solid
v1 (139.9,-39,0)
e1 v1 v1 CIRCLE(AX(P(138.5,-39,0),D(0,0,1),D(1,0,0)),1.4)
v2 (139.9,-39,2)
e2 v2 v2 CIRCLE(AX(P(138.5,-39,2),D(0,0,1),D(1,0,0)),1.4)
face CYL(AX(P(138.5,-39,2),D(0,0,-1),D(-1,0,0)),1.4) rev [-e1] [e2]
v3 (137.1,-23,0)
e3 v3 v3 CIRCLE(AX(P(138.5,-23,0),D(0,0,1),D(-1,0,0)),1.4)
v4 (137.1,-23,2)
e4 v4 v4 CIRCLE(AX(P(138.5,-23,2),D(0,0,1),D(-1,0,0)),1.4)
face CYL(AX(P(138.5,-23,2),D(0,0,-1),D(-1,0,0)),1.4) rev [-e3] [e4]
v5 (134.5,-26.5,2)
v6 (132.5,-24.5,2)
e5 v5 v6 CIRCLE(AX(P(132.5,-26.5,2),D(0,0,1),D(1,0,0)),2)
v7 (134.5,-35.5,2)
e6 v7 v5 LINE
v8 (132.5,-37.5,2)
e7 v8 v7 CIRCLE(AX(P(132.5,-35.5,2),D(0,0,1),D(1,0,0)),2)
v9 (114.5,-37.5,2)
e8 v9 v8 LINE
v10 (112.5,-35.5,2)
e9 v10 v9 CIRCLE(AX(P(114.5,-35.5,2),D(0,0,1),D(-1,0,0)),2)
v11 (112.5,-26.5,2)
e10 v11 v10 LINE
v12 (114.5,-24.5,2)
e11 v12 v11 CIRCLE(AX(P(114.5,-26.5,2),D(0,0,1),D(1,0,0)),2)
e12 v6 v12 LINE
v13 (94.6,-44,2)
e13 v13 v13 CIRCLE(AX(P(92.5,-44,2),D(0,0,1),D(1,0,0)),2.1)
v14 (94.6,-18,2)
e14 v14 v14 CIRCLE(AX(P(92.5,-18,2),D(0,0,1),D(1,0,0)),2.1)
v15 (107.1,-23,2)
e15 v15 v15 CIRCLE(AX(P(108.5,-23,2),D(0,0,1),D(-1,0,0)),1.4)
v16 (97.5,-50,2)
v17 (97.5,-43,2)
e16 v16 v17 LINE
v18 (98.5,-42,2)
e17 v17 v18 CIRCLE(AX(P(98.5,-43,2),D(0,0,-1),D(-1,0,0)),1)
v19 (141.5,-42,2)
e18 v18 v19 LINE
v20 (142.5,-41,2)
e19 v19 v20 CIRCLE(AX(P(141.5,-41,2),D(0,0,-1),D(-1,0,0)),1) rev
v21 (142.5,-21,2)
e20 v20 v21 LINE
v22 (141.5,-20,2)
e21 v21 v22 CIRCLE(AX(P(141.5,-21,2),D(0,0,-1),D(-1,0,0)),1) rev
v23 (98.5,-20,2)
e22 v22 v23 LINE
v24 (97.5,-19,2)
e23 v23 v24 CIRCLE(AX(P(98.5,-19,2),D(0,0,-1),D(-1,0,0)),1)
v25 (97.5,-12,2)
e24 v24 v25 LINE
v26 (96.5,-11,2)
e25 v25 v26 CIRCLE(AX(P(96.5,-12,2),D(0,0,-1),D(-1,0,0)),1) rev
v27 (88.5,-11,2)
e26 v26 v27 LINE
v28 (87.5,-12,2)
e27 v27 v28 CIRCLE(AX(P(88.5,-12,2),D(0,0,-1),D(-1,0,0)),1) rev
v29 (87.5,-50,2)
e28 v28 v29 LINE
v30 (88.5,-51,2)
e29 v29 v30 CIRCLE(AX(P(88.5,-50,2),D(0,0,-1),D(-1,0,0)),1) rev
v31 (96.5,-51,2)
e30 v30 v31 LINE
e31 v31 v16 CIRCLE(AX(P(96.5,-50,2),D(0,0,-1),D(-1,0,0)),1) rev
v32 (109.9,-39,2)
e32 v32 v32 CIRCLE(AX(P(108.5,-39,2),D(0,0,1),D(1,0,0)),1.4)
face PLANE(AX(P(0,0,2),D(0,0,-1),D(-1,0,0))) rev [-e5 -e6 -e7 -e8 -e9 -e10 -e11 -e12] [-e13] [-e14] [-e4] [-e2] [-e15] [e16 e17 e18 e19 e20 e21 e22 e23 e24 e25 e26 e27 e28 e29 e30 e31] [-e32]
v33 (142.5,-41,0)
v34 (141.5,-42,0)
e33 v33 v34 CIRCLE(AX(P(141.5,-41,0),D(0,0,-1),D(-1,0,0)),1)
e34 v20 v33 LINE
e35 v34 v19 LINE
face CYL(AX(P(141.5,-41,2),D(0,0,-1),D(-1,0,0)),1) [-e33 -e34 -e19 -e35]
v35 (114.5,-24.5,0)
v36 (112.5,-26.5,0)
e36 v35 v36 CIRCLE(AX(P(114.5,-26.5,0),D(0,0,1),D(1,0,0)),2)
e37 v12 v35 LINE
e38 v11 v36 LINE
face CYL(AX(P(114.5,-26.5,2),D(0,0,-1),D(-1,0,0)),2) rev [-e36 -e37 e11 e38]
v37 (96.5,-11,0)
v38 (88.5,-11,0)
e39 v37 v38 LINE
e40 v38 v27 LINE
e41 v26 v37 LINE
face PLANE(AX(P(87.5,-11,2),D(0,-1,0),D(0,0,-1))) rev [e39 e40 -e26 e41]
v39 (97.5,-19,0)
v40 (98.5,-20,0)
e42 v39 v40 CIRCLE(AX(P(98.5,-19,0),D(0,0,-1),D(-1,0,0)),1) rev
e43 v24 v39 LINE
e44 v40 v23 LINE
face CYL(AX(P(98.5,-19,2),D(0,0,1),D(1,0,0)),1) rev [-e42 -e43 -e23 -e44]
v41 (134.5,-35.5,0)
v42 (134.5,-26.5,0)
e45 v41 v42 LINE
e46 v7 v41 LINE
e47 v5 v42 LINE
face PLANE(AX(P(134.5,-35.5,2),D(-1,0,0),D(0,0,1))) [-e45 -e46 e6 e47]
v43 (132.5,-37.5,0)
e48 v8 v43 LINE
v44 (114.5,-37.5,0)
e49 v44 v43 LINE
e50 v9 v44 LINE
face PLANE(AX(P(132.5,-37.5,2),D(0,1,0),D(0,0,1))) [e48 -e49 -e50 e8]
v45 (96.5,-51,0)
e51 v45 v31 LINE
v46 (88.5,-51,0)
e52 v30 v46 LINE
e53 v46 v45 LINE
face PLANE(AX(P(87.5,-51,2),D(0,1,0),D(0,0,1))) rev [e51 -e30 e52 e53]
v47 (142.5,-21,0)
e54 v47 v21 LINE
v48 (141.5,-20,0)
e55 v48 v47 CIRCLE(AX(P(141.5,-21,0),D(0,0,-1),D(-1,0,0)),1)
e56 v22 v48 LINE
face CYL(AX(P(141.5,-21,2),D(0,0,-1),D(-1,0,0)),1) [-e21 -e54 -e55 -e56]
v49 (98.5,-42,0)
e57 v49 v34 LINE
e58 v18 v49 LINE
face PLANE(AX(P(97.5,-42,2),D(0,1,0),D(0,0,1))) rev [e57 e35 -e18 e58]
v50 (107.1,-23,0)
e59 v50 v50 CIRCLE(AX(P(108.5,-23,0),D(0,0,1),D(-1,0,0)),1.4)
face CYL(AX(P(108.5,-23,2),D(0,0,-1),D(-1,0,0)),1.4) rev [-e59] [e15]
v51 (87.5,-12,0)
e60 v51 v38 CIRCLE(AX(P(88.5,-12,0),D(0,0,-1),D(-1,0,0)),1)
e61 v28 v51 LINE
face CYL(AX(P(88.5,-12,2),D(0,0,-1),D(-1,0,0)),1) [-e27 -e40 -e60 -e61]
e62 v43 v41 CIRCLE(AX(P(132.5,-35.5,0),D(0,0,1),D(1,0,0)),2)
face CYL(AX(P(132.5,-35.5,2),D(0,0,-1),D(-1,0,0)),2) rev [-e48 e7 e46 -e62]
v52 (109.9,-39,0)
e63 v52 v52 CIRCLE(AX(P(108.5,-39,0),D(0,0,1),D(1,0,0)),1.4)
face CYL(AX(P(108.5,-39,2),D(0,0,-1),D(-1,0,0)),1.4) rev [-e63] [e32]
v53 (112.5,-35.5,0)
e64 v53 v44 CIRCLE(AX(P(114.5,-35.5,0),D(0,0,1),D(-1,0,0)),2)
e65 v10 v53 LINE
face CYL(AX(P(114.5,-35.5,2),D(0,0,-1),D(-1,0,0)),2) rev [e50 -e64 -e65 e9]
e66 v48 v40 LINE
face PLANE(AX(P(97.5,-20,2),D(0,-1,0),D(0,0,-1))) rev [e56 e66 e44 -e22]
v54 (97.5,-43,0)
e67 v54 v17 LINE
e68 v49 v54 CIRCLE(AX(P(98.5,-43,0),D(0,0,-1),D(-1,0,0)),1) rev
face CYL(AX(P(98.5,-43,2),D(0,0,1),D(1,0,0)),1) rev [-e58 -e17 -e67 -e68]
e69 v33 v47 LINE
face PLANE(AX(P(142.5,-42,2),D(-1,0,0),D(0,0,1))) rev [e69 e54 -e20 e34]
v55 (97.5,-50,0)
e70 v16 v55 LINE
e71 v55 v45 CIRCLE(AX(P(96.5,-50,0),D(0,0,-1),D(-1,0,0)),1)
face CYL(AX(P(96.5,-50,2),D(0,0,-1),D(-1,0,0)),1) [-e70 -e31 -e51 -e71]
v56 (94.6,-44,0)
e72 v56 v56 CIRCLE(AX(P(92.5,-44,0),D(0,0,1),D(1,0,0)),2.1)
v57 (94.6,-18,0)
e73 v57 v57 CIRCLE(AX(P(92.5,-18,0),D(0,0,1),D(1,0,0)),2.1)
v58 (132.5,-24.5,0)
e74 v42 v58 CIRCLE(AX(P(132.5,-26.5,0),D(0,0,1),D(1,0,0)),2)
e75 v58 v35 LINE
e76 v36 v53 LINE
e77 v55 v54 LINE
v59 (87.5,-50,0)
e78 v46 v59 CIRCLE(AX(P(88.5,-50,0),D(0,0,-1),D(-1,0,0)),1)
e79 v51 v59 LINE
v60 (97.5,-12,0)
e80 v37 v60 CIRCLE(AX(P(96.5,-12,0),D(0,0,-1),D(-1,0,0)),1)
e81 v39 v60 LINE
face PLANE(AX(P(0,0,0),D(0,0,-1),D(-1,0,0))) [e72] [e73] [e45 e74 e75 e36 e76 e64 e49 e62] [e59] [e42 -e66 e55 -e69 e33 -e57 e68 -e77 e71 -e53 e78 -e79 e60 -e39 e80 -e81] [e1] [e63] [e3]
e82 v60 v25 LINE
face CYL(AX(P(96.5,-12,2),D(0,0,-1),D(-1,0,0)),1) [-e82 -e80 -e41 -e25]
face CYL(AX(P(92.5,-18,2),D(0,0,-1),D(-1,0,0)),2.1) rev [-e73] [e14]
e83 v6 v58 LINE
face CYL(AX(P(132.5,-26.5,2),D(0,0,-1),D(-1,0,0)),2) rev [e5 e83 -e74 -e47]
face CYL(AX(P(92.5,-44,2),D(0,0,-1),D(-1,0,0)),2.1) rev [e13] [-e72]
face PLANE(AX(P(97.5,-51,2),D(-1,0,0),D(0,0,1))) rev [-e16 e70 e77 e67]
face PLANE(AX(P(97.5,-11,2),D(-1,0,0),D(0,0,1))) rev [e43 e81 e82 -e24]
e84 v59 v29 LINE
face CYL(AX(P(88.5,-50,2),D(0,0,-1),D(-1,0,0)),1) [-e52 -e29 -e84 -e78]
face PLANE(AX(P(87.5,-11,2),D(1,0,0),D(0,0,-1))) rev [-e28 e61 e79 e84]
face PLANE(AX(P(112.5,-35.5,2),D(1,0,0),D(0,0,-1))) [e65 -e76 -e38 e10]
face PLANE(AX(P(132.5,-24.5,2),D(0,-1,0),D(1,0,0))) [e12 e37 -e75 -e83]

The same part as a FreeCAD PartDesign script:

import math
import FreeCAD as App
import Part
import Sketcher

V = App.Vector


def edges_at(feature, points):
    """Names of the edges that pass closest to the given points."""
    edges = feature.Shape.Edges
    near = lambda p: min(range(len(edges)), key=lambda i: edges[i].distToShape(Part.Vertex(*p))[0])
    return sorted({f"Edge{near(p) + 1}" for p in points})

doc = App.newDocument("Part")
params = doc.addObject("Spreadsheet::Sheet", "Params")
for row, (alias, value) in enumerate([
    ("sketch1_radius", "2 mm"),
    ("sketch1_diameter", "4.2 mm"),
    ("sketch1_diameter2", "2.8 mm"),
    ("sketch1_width", "10 mm"),
    ("sketch1_width2", "45 mm"),
    ("pad1_length", "2 mm"),
    ("fillet_radius", "1 mm"),
], start=1):
    params.set(f"A{row}", alias)
    params.set(f"B{row}", "=" + value)
    params.setAlias(f"B{row}", alias)

body = doc.addObject("PartDesign::Body", "Body")

sketch1 = body.newObject("Sketcher::SketchObject", "Sketch")
sketch1.AttachmentSupport = (doc.getObject("XY_Plane"), [""])
sketch1.MapMode = "FlatFace"
sketch1.addGeometry([
    Part.LineSegment(V(87.5, -11, 0), V(87.5, -51, 0)),
    Part.LineSegment(V(87.5, -51, 0), V(97.5, -51, 0)),
    Part.LineSegment(V(97.5, -51, 0), V(97.5, -42, 0)),
    Part.LineSegment(V(97.5, -42, 0), V(142.5, -42, 0)),
    Part.LineSegment(V(142.5, -42, 0), V(142.5, -20, 0)),
    Part.LineSegment(V(142.5, -20, 0), V(97.5, -20, 0)),
    Part.LineSegment(V(97.5, -20, 0), V(97.5, -11, 0)),
    Part.LineSegment(V(97.5, -11, 0), V(87.5, -11, 0)),
    Part.Circle(V(92.5, -44, 0), V(0, 0, 1), 2.1),
    Part.Circle(V(108.5, -39, 0), V(0, 0, 1), 1.4),
    Part.Circle(V(138.5, -39, 0), V(0, 0, 1), 1.4),
    Part.ArcOfCircle(Part.Circle(V(132.5, -35.5, 0), V(0, 0, 1), 2), math.radians(-90), math.radians(0)),
    Part.LineSegment(V(132.5, -37.5, 0), V(114.5, -37.5, 0)),
    Part.ArcOfCircle(Part.Circle(V(114.5, -35.5, 0), V(0, 0, 1), 2), math.radians(-180), math.radians(-90)),
    Part.LineSegment(V(112.5, -35.5, 0), V(112.5, -26.5, 0)),
    Part.ArcOfCircle(Part.Circle(V(114.5, -26.5, 0), V(0, 0, 1), 2), math.radians(90), math.radians(180)),
    Part.LineSegment(V(114.5, -24.5, 0), V(132.5, -24.5, 0)),
    Part.ArcOfCircle(Part.Circle(V(132.5, -26.5, 0), V(0, 0, 1), 2), math.radians(0), math.radians(90)),
    Part.LineSegment(V(134.5, -26.5, 0), V(134.5, -35.5, 0)),
    Part.Circle(V(92.5, -18, 0), V(0, 0, 1), 2.1),
    Part.Circle(V(108.5, -23, 0), V(0, 0, 1), 1.4),
    Part.Circle(V(138.5, -23, 0), V(0, 0, 1), 1.4),
], False)
sketch1.addConstraint([
    Sketcher.Constraint("Coincident", 0, 2, 1, 1),
    Sketcher.Constraint("Coincident", 1, 2, 2, 1),
    Sketcher.Constraint("Coincident", 2, 2, 3, 1),
    Sketcher.Constraint("Coincident", 3, 2, 4, 1),
    Sketcher.Constraint("Coincident", 4, 2, 5, 1),
    Sketcher.Constraint("Coincident", 5, 2, 6, 1),
    Sketcher.Constraint("Coincident", 6, 2, 7, 1),
    Sketcher.Constraint("Coincident", 7, 2, 0, 1),
    Sketcher.Constraint("Tangent", 11, 1, 12, 1),
    Sketcher.Constraint("Tangent", 12, 2, 13, 2),
    Sketcher.Constraint("Tangent", 13, 1, 14, 1),
    Sketcher.Constraint("Tangent", 14, 2, 15, 2),
    Sketcher.Constraint("Tangent", 15, 1, 16, 1),
    Sketcher.Constraint("Tangent", 16, 2, 17, 2),
    Sketcher.Constraint("Tangent", 17, 1, 18, 1),
    Sketcher.Constraint("Tangent", 18, 2, 11, 2),
    Sketcher.Constraint("Vertical", 0),
    Sketcher.Constraint("Horizontal", 1),
    Sketcher.Constraint("Vertical", 2),
    Sketcher.Constraint("Horizontal", 3),
    Sketcher.Constraint("Vertical", 4),
    Sketcher.Constraint("Horizontal", 5),
    Sketcher.Constraint("Vertical", 6),
    Sketcher.Constraint("Horizontal", 7),
    Sketcher.Constraint("Horizontal", 12),
    Sketcher.Constraint("Vertical", 14),
    Sketcher.Constraint("Horizontal", 16),
    Sketcher.Constraint("Vertical", 18),
    Sketcher.Constraint("Equal", 9, 10),
    Sketcher.Constraint("Equal", 11, 13),
    Sketcher.Constraint("Equal", 13, 15),
    Sketcher.Constraint("Equal", 15, 17),
    Sketcher.Constraint("Equal", 8, 19),
    Sketcher.Constraint("Equal", 10, 20),
    Sketcher.Constraint("Equal", 20, 21),
    Sketcher.Constraint("Horizontal", 9, 3, 10, 3),
    Sketcher.Constraint("Horizontal", 20, 3, 21, 3),
    Sketcher.Constraint("Vertical", 8, 3, 19, 3),
    Sketcher.Constraint("Vertical", 9, 3, 20, 3),
    Sketcher.Constraint("Vertical", 10, 3, 21, 3),
    Sketcher.Constraint("Vertical", 2, 2, 5, 2),
    Sketcher.Constraint("Equal", 2, 6),
    Sketcher.Constraint("Equal", 6, 14),
    Sketcher.Constraint("Radius", 11, 2.0),
    Sketcher.Constraint("Diameter", 8, 4.2),
    Sketcher.Constraint("Diameter", 9, 2.8),
    Sketcher.Constraint("DistanceX", 1, 1, 1, 2, 10.0),
    Sketcher.Constraint("DistanceX", 3, 1, 3, 2, 45.0),
    Sketcher.Constraint("DistanceX", 12, 2, 12, 1, 18.0),
    Sketcher.Constraint("DistanceY", 0, 2, 0, 1, 40.0),
    Sketcher.Constraint("DistanceY", 2, 1, 2, 2, 9.0),
    Sketcher.Constraint("DistanceY", 8, 3, -1, 1, 44.0),
    Sketcher.Constraint("DistanceY", 9, 3, -1, 1, 39.0),
    Sketcher.Constraint("DistanceY", 19, 3, -1, 1, 18.0),
    Sketcher.Constraint("DistanceY", 20, 3, -1, 1, 23.0),
    Sketcher.Constraint("DistanceY", 0, 2, -1, 1, 51.0),
    Sketcher.Constraint("DistanceX", 8, 3, 9, 3, 16.0),
    Sketcher.Constraint("DistanceX", 9, 3, 10, 3, 30.0),
    Sketcher.Constraint("DistanceX", 11, 3, 10, 3, 6.0),
    Sketcher.Constraint("DistanceX", 0, 2, 8, 3, 5.0),
    Sketcher.Constraint("DistanceX", -1, 1, 8, 3, 92.5),
    Sketcher.Constraint("DistanceY", 11, 3, -1, 1, 35.5),
])
sketch1.setExpression("Constraints[43]", "Params.sketch1_radius")
sketch1.setExpression("Constraints[44]", "Params.sketch1_diameter")
sketch1.setExpression("Constraints[45]", "Params.sketch1_diameter2")
sketch1.setExpression("Constraints[46]", "Params.sketch1_width")
sketch1.setExpression("Constraints[47]", "Params.sketch1_width2")
pad1 = body.newObject("PartDesign::Pad", "Pad")
pad1.Profile = sketch1
pad1.setExpression("Length", "Params.pad1_length")
doc.recompute()

fillet = body.newObject("PartDesign::Fillet", "Fillet")
fillet.Base = (pad1, edges_at(pad1, [
    (97.5, -11, 1),
    (97.5, -20, 1),
    (142.5, -20, 1),
    (142.5, -42, 1),
    (97.5, -42, 1),
    (97.5, -51, 1),
    (87.5, -51, 1),
    (87.5, -11, 1),
]))
fillet.setExpression("Radius", "Params.fillet_radius")

doc.recompute()
